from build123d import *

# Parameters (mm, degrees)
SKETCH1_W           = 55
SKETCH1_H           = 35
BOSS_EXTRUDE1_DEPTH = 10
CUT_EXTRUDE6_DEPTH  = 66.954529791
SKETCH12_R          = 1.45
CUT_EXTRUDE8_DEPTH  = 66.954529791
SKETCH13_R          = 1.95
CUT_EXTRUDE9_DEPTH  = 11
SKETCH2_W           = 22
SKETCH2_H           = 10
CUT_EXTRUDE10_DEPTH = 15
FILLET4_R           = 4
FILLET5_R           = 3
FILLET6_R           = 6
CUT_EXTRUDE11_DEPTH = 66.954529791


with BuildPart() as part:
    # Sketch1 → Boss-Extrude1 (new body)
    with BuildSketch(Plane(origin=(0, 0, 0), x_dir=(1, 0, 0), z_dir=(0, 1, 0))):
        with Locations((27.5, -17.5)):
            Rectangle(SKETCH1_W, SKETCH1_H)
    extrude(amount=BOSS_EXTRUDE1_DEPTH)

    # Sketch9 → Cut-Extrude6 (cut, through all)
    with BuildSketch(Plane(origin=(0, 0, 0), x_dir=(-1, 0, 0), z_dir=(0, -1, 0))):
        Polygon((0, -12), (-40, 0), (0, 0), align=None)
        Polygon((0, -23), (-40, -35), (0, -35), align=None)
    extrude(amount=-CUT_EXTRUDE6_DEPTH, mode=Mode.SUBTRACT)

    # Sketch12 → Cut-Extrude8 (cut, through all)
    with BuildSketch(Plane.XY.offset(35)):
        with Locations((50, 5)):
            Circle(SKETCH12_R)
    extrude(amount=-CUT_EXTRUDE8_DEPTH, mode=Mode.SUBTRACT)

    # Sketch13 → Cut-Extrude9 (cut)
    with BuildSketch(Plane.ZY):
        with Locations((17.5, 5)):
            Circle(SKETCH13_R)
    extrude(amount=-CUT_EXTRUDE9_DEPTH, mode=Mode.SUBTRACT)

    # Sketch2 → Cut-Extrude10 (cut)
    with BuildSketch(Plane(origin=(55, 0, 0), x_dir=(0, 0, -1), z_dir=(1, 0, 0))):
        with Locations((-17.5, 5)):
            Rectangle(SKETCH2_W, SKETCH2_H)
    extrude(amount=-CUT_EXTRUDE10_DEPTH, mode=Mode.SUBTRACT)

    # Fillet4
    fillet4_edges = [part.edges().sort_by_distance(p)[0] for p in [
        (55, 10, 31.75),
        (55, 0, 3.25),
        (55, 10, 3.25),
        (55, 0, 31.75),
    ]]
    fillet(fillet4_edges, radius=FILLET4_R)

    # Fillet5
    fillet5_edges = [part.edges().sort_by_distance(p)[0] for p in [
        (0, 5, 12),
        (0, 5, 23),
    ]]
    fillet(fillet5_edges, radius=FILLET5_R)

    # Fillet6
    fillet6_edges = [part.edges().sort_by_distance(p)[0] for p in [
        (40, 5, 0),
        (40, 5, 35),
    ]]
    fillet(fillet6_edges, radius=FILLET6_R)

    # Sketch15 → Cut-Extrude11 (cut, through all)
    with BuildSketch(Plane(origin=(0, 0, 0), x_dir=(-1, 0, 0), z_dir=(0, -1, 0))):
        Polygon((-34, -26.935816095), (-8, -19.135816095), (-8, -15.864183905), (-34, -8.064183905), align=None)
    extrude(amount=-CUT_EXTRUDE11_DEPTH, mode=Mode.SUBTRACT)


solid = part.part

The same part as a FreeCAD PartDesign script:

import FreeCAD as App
import Part
import Sketcher


def edges_at(feature, points):
    """Names of the edges that pass closest to the given points."""
    edges = feature.Shape.Edges
    near = lambda p: min(range(len(edges)), key=lambda i: edges[i].distToShape(Part.Vertex(*p))[0])
    return sorted({f"Edge{near(p) + 1}" for p in points})

doc = App.newDocument("Part")
body = doc.addObject("PartDesign::Body", "Body")

sketch1 = body.newObject("Sketcher::SketchObject", "Sketch")
sketch1.AttachmentSupport = (doc.getObject("XZ_Plane"), [""])
sketch1.MapMode = "FlatFace"
sketch1.addGeometry(Part.LineSegment(App.Vector(0, 0, 0), App.Vector(0, 35, 0)), False)
sketch1.addGeometry(Part.LineSegment(App.Vector(0, 35, 0), App.Vector(55, 35, 0)), False)
sketch1.addGeometry(Part.LineSegment(App.Vector(55, 35, 0), App.Vector(55, 0, 0)), False)
sketch1.addGeometry(Part.LineSegment(App.Vector(55, 0, 0), App.Vector(0, 0, 0)), False)
sketch1.addConstraint(Sketcher.Constraint("Coincident", 0, 2, 1, 1))
sketch1.addConstraint(Sketcher.Constraint("Coincident", 1, 2, 2, 1))
sketch1.addConstraint(Sketcher.Constraint("Coincident", 2, 2, 3, 1))
sketch1.addConstraint(Sketcher.Constraint("Coincident", 3, 2, 0, 1))
sketch1.addConstraint(Sketcher.Constraint("Vertical", 0))
sketch1.addConstraint(Sketcher.Constraint("Horizontal", 1))
sketch1.addConstraint(Sketcher.Constraint("Vertical", 2))
sketch1.addConstraint(Sketcher.Constraint("Horizontal", 3))
sketch1.addConstraint(Sketcher.Constraint("Coincident", 3, 2, -1, 1))
sketch1.addConstraint(Sketcher.Constraint("DistanceX", 1, 1, 1, 2, 55.0))
sketch1.addConstraint(Sketcher.Constraint("DistanceY", 0, 1, 0, 2, 35.0))
pad1 = body.newObject("PartDesign::Pad", "Pad")
pad1.Profile = sketch1
pad1.Length = 10
pad1.Reversed = True

sketch2 = body.newObject("Sketcher::SketchObject", "Sketch001")
sketch2.AttachmentSupport = (doc.getObject("XZ_Plane"), [""])
sketch2.MapMode = "FlatFace"
sketch2.addGeometry(Part.LineSegment(App.Vector(40, 0, 0), App.Vector(0, 12, 0)), False)
sketch2.addGeometry(Part.LineSegment(App.Vector(0, 12, 0), App.Vector(0, 0, 0)), False)
sketch2.addGeometry(Part.LineSegment(App.Vector(0, 0, 0), App.Vector(40, 0, 0)), False)
sketch2.addGeometry(Part.LineSegment(App.Vector(0, 23, 0), App.Vector(40, 35, 0)), False)
sketch2.addGeometry(Part.LineSegment(App.Vector(40, 35, 0), App.Vector(0, 35, 0)), False)
sketch2.addGeometry(Part.LineSegment(App.Vector(0, 35, 0), App.Vector(0, 23, 0)), False)
sketch2.addConstraint(Sketcher.Constraint("Coincident", 0, 2, 1, 1))
sketch2.addConstraint(Sketcher.Constraint("Coincident", 1, 2, 2, 1))
sketch2.addConstraint(Sketcher.Constraint("Coincident", 2, 2, 0, 1))
sketch2.addConstraint(Sketcher.Constraint("Coincident", 3, 2, 4, 1))
sketch2.addConstraint(Sketcher.Constraint("Coincident", 4, 2, 5, 1))
sketch2.addConstraint(Sketcher.Constraint("Coincident", 5, 2, 3, 1))
sketch2.addConstraint(Sketcher.Constraint("Vertical", 1))
sketch2.addConstraint(Sketcher.Constraint("Horizontal", 2))
sketch2.addConstraint(Sketcher.Constraint("Horizontal", 4))
sketch2.addConstraint(Sketcher.Constraint("Vertical", 5))
sketch2.addConstraint(Sketcher.Constraint("Coincident", 1, 2, -1, 1))
sketch2.addConstraint(Sketcher.Constraint("PointOnObject", 4, 2, -2))
sketch2.addConstraint(Sketcher.Constraint("Vertical", 2, 2, 3, 2))
sketch2.addConstraint(Sketcher.Constraint("Equal", 1, 5))
sketch2.addConstraint(Sketcher.Constraint("DistanceX", 2, 1, 2, 2, 40.0))
sketch2.addConstraint(Sketcher.Constraint("DistanceY", 1, 2, 1, 1, 12.0))
sketch2.addConstraint(Sketcher.Constraint("DistanceY", -1, 1, 3, 2, 35.0))
pocket1 = body.newObject("PartDesign::Pocket", "Pocket")
pocket1.Profile = sketch2
pocket1.Type = "ThroughAll"

sketch3 = body.newObject("Sketcher::SketchObject", "Sketch002")
sketch3.AttachmentSupport = (doc.getObject("XY_Plane"), [""])
sketch3.MapMode = "FlatFace"
sketch3.AttachmentOffset = App.Placement(App.Vector(0, 0, 35), App.Rotation())
sketch3.addGeometry(Part.Circle(App.Vector(50, 5, 0), App.Vector(0, 0, 1), 1.4), False)
sketch3.addConstraint(Sketcher.Constraint("Diameter", 0, 2.9))
sketch3.addConstraint(Sketcher.Constraint("DistanceX", -1, 1, 0, 3, 50.0))
sketch3.addConstraint(Sketcher.Constraint("DistanceY", -1, 1, 0, 3, 5.0))
pocket2 = body.newObject("PartDesign::Pocket", "Pocket001")
pocket2.Profile = sketch3
pocket2.Type = "ThroughAll"

sketch4 = body.newObject("Sketcher::SketchObject", "Sketch003")
sketch4.AttachmentSupport = (doc.getObject("YZ_Plane"), [""])
sketch4.MapMode = "FlatFace"
sketch4.addGeometry(Part.Circle(App.Vector(5, 17.5, 0), App.Vector(0, 0, 1), 1.9), False)
sketch4.addConstraint(Sketcher.Constraint("Diameter", 0, 3.9))
sketch4.addConstraint(Sketcher.Constraint("DistanceX", -1, 1, 0, 3, 5.0))
sketch4.addConstraint(Sketcher.Constraint("DistanceY", -1, 1, 0, 3, 17.5))
pocket3 = body.newObject("PartDesign::Pocket", "Pocket002")
pocket3.Profile = sketch4
pocket3.Length = 11
pocket3.Reversed = True

sketch5 = body.newObject("Sketcher::SketchObject", "Sketch004")
sketch5.AttachmentSupport = (doc.getObject("YZ_Plane"), [""])
sketch5.MapMode = "FlatFace"
sketch5.AttachmentOffset = App.Placement(App.Vector(0, 0, 55), App.Rotation())
sketch5.addGeometry(Part.LineSegment(App.Vector(10, 28, 0), App.Vector(0, 28, 0)), False)
sketch5.addGeometry(Part.LineSegment(App.Vector(0, 28, 0), App.Vector(0, 6, 0)), False)
sketch5.addGeometry(Part.LineSegment(App.Vector(0, 6, 0), App.Vector(10, 6, 0)), False)
sketch5.addGeometry(Part.LineSegment(App.Vector(10, 6, 0), App.Vector(10, 28, 0)), False)
sketch5.addConstraint(Sketcher.Constraint("Coincident", 0, 2, 1, 1))
sketch5.addConstraint(Sketcher.Constraint("Coincident", 1, 2, 2, 1))
sketch5.addConstraint(Sketcher.Constraint("Coincident", 2, 2, 3, 1))
sketch5.addConstraint(Sketcher.Constraint("Coincident", 3, 2, 0, 1))
sketch5.addConstraint(Sketcher.Constraint("Horizontal", 0))
sketch5.addConstraint(Sketcher.Constraint("Vertical", 1))
sketch5.addConstraint(Sketcher.Constraint("Horizontal", 2))
sketch5.addConstraint(Sketcher.Constraint("Vertical", 3))
sketch5.addConstraint(Sketcher.Constraint("PointOnObject", 0, 2, -2))
sketch5.addConstraint(Sketcher.Constraint("DistanceX", 0, 2, 0, 1, 10.0))
sketch5.addConstraint(Sketcher.Constraint("DistanceY", 1, 2, 1, 1, 22.0))
sketch5.addConstraint(Sketcher.Constraint("DistanceY", -1, 1, 0, 2, 28.5))
pocket4 = body.newObject("PartDesign::Pocket", "Pocket003")
pocket4.Profile = sketch5
pocket4.Length = 15
doc.recompute()

fillet = body.newObject("PartDesign::Fillet", "Fillet")
fillet.Base = (pocket4, edges_at(pocket4, [
    (55, 10, 31.75),
    (55, 0, 3.25),
    (55, 10, 3.25),
    (55, 0, 31.75),
]))
fillet.Radius = 4
doc.recompute()

fillet2 = body.newObject("PartDesign::Fillet", "Fillet001")
fillet2.Base = (fillet, edges_at(fillet, [(0, 5, 12), (0, 5, 23)]))
fillet2.Radius = 3
doc.recompute()

fillet3 = body.newObject("PartDesign::Fillet", "Fillet002")
fillet3.Base = (fillet2, edges_at(fillet2, [(40, 5, 0), (40, 5, 35)]))
fillet3.Radius = 6

sketch6 = body.newObject("Sketcher::SketchObject", "Sketch005")
sketch6.AttachmentSupport = (doc.getObject("XZ_Plane"), [""])
sketch6.MapMode = "FlatFace"
sketch6.addGeometry(Part.LineSegment(App.Vector(34, 26.9, 0), App.Vector(8, 19.1, 0)), False)
sketch6.addGeometry(Part.LineSegment(App.Vector(8, 19.1, 0), App.Vector(8, 15.9, 0)), False)
sketch6.addGeometry(Part.LineSegment(App.Vector(8, 15.9, 0), App.Vector(34, 8.1, 0)), False)
sketch6.addGeometry(Part.LineSegment(App.Vector(34, 8.1, 0), App.Vector(34, 26.9, 0)), False)
sketch6.addConstraint(Sketcher.Constraint("Coincident", 0, 2, 1, 1))
sketch6.addConstraint(Sketcher.Constraint("Coincident", 1, 2, 2, 1))
sketch6.addConstraint(Sketcher.Constraint("Coincident", 2, 2, 3, 1))
sketch6.addConstraint(Sketcher.Constraint("Coincident", 3, 2, 0, 1))
sketch6.addConstraint(Sketcher.Constraint("Vertical", 1))
sketch6.addConstraint(Sketcher.Constraint("Vertical", 3))
sketch6.addConstraint(Sketcher.Constraint("Equal", 0, 2))
sketch6.addConstraint(Sketcher.Constraint("DistanceX", -1, 1, 0, 2, 8.0))
sketch6.addConstraint(Sketcher.Constraint("DistanceX", -1, 1, 2, 2, 34.0))
sketch6.addConstraint(Sketcher.Constraint("DistanceY", 2, 2, 1, 2, 7.8))
sketch6.addConstraint(Sketcher.Constraint("DistanceY", 1, 2, 1, 1, 3.271632))
sketch6.addConstraint(Sketcher.Constraint("DistanceY", -1, 1, 0, 2, 19.135816))
pocket5 = body.newObject("PartDesign::Pocket", "Pocket004")
pocket5.Profile = sketch6
pocket5.Type = "ThroughAll"

doc.recompute()
